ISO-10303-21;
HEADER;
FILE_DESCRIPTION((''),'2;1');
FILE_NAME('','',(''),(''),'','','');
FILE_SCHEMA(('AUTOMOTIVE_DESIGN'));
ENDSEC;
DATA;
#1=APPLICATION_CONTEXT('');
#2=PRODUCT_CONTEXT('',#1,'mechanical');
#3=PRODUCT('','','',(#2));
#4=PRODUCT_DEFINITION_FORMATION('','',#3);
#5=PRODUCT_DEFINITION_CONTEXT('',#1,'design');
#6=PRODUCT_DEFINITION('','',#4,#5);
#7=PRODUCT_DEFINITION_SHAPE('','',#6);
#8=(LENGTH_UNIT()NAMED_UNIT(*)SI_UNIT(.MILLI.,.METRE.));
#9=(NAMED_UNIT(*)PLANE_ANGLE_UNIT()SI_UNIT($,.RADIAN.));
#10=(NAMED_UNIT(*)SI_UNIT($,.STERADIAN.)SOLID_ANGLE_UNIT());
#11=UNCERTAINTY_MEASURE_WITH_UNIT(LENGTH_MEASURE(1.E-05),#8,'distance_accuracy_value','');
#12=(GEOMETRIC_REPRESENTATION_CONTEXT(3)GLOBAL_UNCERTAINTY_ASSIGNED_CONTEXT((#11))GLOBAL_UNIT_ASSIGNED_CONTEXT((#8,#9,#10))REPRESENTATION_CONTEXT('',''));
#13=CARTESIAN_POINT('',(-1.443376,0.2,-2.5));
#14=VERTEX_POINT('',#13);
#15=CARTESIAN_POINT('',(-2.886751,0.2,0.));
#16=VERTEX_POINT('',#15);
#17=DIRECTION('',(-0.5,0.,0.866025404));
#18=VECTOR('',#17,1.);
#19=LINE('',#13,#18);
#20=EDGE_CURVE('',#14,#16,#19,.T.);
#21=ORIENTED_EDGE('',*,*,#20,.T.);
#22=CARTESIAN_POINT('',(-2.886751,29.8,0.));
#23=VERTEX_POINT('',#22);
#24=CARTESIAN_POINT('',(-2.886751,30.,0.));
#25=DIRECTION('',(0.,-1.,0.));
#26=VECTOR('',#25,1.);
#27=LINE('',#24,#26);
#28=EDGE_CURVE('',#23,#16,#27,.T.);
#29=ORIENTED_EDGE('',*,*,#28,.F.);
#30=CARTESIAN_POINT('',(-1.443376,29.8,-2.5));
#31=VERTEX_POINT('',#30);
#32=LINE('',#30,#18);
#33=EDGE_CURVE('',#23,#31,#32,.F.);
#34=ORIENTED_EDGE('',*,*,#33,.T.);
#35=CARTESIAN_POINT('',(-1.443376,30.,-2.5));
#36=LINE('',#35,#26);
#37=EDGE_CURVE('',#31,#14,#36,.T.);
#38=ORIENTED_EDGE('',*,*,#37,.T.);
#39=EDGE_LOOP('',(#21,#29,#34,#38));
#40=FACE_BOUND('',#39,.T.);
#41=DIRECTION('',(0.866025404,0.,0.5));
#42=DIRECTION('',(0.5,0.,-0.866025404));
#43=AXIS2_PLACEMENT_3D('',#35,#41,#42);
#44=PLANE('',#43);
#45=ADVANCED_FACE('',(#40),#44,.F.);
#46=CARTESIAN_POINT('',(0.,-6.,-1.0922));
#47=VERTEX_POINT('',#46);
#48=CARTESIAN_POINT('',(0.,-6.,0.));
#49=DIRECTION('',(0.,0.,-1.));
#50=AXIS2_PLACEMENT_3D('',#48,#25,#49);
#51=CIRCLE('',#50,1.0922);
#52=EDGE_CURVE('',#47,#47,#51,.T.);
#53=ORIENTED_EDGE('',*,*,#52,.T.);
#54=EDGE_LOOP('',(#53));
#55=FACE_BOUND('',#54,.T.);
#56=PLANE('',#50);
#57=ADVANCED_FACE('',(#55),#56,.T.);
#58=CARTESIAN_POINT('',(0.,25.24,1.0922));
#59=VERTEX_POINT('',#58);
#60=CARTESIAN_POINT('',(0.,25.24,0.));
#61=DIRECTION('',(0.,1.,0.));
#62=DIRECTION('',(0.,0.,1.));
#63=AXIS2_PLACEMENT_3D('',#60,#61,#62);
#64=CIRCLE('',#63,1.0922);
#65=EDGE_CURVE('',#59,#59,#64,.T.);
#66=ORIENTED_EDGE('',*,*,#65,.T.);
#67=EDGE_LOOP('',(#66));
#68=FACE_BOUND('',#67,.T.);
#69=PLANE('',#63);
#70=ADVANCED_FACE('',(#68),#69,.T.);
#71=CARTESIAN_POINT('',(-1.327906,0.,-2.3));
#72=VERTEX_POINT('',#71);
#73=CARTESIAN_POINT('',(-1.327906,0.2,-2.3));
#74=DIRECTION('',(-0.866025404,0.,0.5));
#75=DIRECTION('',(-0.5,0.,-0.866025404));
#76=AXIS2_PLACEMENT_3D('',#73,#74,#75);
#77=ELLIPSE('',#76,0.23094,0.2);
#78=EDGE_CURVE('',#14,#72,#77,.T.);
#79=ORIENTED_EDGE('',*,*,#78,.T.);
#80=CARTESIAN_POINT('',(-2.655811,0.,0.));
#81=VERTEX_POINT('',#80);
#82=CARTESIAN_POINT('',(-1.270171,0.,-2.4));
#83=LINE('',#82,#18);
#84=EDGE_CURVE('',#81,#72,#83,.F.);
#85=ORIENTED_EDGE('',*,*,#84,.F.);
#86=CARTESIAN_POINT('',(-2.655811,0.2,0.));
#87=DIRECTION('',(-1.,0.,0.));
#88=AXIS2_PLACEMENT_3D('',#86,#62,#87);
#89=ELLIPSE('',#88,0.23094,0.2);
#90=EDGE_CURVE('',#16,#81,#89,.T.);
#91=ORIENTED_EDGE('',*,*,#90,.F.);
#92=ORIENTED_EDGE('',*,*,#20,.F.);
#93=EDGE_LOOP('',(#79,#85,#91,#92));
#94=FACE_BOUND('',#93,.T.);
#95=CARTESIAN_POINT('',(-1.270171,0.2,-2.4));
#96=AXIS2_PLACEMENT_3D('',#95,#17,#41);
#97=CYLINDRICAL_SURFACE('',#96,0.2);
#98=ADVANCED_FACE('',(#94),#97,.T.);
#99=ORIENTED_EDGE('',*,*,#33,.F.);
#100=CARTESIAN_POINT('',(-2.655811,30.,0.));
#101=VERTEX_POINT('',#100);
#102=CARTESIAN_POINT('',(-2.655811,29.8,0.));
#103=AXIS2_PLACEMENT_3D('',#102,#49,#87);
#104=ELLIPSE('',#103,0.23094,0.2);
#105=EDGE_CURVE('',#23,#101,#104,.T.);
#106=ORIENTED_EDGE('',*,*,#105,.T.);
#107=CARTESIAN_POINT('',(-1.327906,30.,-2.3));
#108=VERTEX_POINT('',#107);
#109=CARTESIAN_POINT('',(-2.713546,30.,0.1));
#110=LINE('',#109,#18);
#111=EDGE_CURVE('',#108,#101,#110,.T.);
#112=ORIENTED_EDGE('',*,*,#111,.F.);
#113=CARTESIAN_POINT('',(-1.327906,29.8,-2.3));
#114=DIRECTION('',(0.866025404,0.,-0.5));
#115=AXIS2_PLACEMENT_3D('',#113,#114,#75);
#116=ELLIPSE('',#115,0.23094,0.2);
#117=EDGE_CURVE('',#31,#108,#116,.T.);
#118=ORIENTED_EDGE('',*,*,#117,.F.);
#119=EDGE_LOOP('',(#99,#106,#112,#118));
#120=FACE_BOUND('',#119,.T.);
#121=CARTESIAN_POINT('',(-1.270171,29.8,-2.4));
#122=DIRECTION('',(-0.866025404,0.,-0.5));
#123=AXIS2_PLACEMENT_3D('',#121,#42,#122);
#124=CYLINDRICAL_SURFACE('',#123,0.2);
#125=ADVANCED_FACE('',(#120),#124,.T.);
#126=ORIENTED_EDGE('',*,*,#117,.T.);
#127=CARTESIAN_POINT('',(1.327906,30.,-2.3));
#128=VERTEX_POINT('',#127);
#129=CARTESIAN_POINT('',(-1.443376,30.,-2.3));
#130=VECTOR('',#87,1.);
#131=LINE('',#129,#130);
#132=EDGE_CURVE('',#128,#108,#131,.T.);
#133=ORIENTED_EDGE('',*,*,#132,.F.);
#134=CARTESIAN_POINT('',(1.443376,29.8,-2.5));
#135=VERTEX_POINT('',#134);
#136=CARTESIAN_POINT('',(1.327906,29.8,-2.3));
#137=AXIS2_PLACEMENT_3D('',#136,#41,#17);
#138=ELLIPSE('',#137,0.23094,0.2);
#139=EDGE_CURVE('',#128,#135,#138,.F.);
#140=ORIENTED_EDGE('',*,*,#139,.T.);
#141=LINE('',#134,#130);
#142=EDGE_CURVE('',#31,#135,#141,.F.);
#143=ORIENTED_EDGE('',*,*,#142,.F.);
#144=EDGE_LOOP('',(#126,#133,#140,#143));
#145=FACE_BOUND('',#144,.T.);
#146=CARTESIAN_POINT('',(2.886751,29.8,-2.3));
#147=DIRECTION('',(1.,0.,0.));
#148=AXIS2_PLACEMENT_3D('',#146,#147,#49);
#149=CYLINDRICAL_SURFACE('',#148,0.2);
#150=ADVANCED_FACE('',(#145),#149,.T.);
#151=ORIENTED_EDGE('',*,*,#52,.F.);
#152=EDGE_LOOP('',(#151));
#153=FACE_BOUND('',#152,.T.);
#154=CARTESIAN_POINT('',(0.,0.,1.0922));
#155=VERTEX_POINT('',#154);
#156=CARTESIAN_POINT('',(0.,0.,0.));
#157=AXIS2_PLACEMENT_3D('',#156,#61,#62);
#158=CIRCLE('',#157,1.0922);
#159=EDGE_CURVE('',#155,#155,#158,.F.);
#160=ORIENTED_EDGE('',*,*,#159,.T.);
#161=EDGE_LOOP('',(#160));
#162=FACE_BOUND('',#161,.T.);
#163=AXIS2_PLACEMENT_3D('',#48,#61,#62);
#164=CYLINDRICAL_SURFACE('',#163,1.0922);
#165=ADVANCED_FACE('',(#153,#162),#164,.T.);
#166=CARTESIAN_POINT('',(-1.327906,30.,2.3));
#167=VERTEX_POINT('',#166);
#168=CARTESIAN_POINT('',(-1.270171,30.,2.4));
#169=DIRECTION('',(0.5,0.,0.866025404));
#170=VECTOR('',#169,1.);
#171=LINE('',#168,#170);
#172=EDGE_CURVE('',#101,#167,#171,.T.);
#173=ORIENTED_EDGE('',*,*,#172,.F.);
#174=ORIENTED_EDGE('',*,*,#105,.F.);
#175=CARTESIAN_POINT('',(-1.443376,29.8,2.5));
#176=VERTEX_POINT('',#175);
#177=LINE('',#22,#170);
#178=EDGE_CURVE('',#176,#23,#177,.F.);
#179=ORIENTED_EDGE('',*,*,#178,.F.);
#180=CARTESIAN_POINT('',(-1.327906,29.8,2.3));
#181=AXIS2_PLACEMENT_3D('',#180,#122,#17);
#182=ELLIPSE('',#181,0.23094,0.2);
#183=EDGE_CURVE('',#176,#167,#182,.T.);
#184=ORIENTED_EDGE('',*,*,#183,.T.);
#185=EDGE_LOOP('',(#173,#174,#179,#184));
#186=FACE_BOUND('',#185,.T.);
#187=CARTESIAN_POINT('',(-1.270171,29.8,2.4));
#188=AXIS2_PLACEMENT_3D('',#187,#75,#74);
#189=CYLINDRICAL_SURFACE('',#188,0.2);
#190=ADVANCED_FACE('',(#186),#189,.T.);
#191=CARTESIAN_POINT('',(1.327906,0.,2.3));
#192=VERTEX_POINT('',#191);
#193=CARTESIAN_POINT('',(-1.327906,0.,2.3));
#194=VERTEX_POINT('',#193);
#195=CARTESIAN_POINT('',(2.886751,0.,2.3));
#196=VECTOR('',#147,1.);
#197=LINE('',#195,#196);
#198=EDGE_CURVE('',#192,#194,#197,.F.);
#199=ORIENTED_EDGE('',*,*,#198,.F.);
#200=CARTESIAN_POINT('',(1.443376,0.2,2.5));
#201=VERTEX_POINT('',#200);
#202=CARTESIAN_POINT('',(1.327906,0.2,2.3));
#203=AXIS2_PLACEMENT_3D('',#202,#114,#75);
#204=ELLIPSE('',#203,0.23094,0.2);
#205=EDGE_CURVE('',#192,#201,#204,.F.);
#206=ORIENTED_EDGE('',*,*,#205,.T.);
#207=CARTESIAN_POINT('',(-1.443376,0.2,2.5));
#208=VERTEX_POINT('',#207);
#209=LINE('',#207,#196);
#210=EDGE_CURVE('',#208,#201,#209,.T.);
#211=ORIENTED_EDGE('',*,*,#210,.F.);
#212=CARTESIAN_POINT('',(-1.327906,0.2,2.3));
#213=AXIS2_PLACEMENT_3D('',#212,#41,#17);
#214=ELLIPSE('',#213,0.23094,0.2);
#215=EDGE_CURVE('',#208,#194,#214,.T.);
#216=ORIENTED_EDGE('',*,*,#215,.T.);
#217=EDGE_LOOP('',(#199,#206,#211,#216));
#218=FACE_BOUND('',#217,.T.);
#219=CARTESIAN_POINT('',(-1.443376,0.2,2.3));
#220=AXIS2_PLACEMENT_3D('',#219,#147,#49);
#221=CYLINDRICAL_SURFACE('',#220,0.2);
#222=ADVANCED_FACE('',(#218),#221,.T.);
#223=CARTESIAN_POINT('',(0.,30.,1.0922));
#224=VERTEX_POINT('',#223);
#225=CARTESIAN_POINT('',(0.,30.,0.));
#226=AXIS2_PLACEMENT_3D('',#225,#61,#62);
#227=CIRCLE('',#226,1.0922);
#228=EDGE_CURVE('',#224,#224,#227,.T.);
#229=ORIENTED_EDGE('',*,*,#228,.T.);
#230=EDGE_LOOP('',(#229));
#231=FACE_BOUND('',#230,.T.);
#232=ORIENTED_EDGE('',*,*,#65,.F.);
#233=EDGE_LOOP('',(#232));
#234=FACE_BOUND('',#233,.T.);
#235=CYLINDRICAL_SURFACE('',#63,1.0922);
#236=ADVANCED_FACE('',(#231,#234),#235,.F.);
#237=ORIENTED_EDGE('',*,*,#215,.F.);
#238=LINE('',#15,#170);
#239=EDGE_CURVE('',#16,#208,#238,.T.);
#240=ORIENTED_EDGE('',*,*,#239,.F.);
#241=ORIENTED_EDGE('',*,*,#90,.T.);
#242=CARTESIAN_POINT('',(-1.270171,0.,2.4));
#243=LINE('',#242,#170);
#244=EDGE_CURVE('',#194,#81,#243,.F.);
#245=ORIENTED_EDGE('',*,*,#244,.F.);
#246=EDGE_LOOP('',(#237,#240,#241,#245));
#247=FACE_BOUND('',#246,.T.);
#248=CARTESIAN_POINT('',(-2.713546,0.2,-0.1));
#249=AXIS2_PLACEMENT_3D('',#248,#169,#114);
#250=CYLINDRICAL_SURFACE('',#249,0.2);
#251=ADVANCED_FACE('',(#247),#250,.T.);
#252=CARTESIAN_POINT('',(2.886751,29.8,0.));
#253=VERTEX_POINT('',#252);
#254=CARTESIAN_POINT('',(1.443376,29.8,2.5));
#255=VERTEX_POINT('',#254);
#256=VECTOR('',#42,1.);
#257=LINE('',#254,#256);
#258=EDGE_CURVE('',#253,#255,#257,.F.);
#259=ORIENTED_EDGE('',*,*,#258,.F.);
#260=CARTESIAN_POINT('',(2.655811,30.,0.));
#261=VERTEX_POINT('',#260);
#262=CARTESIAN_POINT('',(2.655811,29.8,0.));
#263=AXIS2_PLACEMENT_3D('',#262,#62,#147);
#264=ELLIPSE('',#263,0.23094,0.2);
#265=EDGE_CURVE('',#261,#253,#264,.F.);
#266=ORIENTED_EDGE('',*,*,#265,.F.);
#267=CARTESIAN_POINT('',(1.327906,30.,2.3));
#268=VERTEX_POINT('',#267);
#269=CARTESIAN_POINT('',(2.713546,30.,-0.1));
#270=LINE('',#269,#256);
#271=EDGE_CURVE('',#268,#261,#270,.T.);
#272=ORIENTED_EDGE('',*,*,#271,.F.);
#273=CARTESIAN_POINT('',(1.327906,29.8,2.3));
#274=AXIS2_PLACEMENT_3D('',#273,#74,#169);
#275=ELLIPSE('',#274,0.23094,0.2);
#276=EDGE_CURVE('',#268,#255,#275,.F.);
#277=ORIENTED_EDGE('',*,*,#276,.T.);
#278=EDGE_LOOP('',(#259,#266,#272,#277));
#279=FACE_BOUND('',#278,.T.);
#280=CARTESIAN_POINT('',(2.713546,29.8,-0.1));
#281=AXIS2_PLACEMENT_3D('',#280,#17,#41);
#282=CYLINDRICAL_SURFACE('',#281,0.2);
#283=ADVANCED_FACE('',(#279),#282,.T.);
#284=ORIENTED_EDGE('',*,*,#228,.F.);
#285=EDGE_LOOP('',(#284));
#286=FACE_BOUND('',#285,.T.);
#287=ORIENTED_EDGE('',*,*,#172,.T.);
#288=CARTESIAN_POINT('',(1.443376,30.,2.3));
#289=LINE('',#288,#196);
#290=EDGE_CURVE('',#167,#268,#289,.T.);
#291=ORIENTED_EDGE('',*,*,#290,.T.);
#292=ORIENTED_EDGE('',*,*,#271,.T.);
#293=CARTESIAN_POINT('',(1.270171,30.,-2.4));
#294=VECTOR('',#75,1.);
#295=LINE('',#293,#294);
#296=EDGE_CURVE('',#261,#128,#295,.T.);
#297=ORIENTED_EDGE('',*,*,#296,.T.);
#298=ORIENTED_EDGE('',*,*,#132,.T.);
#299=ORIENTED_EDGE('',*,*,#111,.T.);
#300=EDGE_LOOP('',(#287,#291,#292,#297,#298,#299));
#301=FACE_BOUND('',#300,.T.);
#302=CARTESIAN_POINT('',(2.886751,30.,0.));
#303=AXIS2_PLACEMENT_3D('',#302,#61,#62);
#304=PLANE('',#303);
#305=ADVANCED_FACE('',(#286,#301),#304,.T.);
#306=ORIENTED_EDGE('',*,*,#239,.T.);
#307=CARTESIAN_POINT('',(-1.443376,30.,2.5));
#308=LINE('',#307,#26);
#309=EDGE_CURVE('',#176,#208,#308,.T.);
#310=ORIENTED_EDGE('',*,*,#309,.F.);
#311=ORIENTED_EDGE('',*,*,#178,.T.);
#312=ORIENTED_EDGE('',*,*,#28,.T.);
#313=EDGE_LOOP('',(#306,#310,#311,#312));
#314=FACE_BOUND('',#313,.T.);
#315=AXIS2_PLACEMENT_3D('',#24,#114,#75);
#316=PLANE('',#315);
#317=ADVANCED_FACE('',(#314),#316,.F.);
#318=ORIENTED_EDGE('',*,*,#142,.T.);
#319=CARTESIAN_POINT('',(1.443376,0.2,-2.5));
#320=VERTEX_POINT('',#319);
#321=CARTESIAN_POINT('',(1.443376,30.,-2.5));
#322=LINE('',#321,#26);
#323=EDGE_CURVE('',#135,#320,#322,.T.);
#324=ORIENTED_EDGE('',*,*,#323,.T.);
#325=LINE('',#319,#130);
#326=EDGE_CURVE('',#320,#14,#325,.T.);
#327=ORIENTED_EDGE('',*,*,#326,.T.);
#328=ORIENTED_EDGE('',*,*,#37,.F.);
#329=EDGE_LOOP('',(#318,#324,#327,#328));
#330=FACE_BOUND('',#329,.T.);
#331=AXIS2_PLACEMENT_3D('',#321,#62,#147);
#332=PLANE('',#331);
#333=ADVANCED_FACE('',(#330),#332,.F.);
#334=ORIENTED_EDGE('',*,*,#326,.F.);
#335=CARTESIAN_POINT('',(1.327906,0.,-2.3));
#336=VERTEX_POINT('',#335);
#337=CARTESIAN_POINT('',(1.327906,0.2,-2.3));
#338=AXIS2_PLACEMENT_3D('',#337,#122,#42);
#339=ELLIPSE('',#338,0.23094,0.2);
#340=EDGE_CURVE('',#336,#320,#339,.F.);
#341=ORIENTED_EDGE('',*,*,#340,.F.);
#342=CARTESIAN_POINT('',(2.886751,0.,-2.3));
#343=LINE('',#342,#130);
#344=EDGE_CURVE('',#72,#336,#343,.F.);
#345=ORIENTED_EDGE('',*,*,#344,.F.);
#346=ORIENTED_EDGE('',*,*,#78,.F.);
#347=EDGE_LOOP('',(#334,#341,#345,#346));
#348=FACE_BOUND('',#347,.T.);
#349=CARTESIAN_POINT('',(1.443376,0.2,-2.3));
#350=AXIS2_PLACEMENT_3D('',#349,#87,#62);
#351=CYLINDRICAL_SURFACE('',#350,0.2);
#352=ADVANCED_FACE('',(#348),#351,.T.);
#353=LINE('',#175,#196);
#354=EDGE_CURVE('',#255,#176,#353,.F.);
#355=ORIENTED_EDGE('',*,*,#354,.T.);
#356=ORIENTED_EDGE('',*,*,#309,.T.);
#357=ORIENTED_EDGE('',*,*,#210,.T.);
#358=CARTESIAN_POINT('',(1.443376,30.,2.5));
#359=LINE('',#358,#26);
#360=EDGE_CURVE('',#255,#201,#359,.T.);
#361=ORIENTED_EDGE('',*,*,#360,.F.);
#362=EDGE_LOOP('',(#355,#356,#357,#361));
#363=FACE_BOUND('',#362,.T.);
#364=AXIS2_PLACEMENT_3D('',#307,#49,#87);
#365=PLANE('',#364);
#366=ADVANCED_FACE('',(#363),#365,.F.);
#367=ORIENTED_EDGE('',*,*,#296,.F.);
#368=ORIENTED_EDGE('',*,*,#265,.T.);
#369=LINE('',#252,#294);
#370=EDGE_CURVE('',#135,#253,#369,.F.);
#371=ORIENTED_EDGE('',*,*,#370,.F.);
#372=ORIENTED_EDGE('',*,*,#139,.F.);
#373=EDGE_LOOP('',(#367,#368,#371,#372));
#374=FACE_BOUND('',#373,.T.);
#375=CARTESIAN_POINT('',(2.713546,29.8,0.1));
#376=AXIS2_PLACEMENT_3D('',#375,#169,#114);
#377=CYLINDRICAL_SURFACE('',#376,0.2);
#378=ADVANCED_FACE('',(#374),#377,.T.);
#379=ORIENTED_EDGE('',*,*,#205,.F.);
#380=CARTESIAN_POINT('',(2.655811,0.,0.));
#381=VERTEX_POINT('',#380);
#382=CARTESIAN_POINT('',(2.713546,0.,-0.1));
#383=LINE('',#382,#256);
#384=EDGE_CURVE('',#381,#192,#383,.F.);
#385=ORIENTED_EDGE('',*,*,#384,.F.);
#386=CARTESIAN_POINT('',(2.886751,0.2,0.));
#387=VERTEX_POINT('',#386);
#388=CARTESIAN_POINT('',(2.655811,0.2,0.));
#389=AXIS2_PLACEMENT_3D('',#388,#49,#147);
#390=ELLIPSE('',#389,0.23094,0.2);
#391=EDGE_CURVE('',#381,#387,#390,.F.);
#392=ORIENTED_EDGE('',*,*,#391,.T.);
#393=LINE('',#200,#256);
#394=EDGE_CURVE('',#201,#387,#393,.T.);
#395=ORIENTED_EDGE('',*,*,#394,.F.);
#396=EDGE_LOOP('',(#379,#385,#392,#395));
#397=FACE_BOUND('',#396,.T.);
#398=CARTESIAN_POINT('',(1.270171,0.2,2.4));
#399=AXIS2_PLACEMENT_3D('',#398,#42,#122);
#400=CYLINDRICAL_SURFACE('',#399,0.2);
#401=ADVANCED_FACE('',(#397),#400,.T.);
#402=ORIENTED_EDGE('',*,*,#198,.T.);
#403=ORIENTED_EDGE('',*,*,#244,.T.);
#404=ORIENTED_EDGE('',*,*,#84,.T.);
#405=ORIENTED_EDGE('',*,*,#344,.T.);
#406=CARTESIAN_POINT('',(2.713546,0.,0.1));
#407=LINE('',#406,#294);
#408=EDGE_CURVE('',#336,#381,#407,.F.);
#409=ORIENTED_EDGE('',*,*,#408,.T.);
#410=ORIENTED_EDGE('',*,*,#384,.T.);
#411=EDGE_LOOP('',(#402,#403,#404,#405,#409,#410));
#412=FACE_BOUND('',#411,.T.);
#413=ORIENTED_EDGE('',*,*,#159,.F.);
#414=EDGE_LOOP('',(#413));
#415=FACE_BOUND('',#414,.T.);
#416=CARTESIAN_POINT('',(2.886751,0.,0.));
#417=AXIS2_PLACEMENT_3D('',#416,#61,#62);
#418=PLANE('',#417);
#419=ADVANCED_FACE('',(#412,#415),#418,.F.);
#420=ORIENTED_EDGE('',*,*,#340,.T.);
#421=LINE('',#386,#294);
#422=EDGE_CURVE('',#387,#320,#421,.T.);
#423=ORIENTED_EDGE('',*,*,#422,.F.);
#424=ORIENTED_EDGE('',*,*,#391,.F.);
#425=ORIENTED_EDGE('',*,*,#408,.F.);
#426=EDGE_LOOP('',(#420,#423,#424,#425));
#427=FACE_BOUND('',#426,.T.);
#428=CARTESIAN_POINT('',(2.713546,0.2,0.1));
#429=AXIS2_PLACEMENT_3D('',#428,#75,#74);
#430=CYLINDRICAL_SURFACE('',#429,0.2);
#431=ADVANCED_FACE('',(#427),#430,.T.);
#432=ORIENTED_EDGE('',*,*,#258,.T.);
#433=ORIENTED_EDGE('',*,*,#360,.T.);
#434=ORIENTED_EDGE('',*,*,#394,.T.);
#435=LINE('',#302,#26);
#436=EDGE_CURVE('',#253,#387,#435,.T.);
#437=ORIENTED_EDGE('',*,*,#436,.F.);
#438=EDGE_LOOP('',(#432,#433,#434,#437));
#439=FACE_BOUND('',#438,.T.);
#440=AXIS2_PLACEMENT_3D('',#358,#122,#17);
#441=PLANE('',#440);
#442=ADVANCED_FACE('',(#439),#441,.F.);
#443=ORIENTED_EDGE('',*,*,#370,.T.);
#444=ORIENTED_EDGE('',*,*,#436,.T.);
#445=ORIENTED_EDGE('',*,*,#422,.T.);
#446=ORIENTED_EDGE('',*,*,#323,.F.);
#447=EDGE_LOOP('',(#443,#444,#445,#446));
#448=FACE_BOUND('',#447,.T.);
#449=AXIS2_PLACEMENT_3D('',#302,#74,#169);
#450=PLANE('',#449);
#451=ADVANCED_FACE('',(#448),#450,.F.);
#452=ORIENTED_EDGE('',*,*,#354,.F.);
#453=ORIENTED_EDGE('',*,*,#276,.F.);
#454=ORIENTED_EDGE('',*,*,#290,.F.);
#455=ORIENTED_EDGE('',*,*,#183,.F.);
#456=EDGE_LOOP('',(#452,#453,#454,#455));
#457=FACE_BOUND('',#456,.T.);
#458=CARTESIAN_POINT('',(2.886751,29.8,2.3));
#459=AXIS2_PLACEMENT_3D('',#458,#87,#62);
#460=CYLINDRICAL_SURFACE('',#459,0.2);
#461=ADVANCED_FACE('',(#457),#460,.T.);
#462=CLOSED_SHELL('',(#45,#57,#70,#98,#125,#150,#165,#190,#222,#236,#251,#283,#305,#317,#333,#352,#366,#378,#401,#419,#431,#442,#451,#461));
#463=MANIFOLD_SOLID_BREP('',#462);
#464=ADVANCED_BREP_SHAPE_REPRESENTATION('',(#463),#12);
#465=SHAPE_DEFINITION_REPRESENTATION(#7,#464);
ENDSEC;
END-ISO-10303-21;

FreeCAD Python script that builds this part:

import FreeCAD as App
import Part
import Sketcher
Q = App.Units.Quantity


def edges_at(feature, points):
    """Names of the edges that pass closest to the given points."""
    edges = feature.Shape.Edges
    near = lambda p: min(range(len(edges)), key=lambda i: edges[i].distToShape(Part.Vertex(*p))[0])
    return sorted({f"Edge{near(p) + 1}" for p in points})


def add_polygon(sketch, points):
    """Adds a closed chain of lines whose ends are joined by coincident constraints."""
    first, n = sketch.GeometryCount, len(points)
    for a, b in zip(points, points[1:] + points[:1]):
        sketch.addGeometry(Part.LineSegment(App.Vector(*a, 0), App.Vector(*b, 0)), False)
    for i in range(n):
        sketch.addConstraint(Sketcher.Constraint("Coincident", first + i, 2, first + (i + 1) % n, 1))

doc = App.newDocument("Part")
body = doc.addObject("PartDesign::Body", "Body")

# Sketch on XZ plane
sketch1 = body.newObject("Sketcher::SketchObject", "Sketch")
sketch1.AttachmentSupport = (doc.getObject("XZ_Plane"), [""])
sketch1.MapMode = "FlatFace"
add_polygon(sketch1, [(2.886751, 0), (1.443376, -2.5), (-1.443376, -2.5), (-2.886751, 0), (-1.443376, 2.5), (1.443376, 2.5)])  # lines 0-5
sketch1.addConstraint(Sketcher.Constraint("Horizontal", 1))
sketch1.addConstraint(Sketcher.Constraint("Horizontal", 4))
sketch1.addConstraint(Sketcher.Constraint("Symmetric", 0, 2, 3, 2, -1, 1))
sketch1.addConstraint(Sketcher.Constraint("Symmetric", 2, 2, 5, 2, -1, 1))
sketch1.addConstraint(Sketcher.Constraint("PointOnObject", 2, 2, -1))
sketch1.addConstraint(Sketcher.Constraint("Parallel", 2, 5))
sketch1.addConstraint(Sketcher.Constraint("Vertical", 1, 2, 3, 2))
sketch1.addConstraint(Sketcher.Constraint("Angle", 0, Q("-120 deg")))
sketch1.addConstraint(Sketcher.Constraint("DistanceY", 1, 2, 3, 2, Q("5 mm")))
sketch1.addConstraint(Sketcher.Constraint("DistanceX", 1, 2, 1, 1, Q("2.886751 mm")))
pad1 = body.newObject("PartDesign::Pad", "Pad")
pad1.Profile = sketch1
pad1.Length = 30
pad1.Reversed = True
doc.recompute()

fillet = body.newObject("PartDesign::Fillet", "Fillet")
fillet.Base = (pad1, edges_at(pad1, [
    (0, 30, -2.5),
    (-2.165, 30, -1.25),
    (-2.165, 30, 1.25),
    (0, 30, 2.5),
    (2.165, 30, 1.25),
    (0, 0, 2.5),
    (-2.165, 0, 1.25),
    (-2.165, 0, -1.25),
    (2.165, 30, -1.25),
    (0, 0, -2.5),
    (2.165, 0, -1.25),
    (2.165, 0, 1.25),
]))
fillet.Radius = 0.2

# Sketch on XZ plane
sketch2 = body.newObject("Sketcher::SketchObject", "Sketch001")
sketch2.AttachmentSupport = (doc.getObject("XZ_Plane"), [""])
sketch2.MapMode = "FlatFace"
sketch2.addGeometry(Part.Circle(App.Vector(0, 0, 0), App.Vector(0, 0, 1), 1.0922), False)
sketch2.addConstraint(Sketcher.Constraint("Coincident", 0, 3, -1, 1))
sketch2.addConstraint(Sketcher.Constraint("Diameter", 0, Q("2.1844 mm")))
pad2 = body.newObject("PartDesign::Pad", "Pad001")
pad2.Profile = sketch2
pad2.Length = 6

# Sketch on XZ plane
sketch3 = body.newObject("Sketcher::SketchObject", "Sketch002")
sketch3.AttachmentSupport = (doc.getObject("XZ_Plane"), [""])
sketch3.MapMode = "FlatFace"
sketch3.AttachmentOffset = App.Placement(App.Vector(0, 0, -30), App.Rotation())
sketch3.addGeometry(Part.Circle(App.Vector(0, 0, 0), App.Vector(0, 0, 1), 1.0922), False)
sketch3.addConstraint(Sketcher.Constraint("Coincident", 0, 3, -1, 1))
sketch3.addConstraint(Sketcher.Constraint("Diameter", 0, Q("2.1844 mm")))
pocket1 = body.newObject("PartDesign::Pocket", "Pocket")
pocket1.Profile = sketch3
pocket1.Length = 4.76
pocket1.Reversed = True

doc.recompute()
